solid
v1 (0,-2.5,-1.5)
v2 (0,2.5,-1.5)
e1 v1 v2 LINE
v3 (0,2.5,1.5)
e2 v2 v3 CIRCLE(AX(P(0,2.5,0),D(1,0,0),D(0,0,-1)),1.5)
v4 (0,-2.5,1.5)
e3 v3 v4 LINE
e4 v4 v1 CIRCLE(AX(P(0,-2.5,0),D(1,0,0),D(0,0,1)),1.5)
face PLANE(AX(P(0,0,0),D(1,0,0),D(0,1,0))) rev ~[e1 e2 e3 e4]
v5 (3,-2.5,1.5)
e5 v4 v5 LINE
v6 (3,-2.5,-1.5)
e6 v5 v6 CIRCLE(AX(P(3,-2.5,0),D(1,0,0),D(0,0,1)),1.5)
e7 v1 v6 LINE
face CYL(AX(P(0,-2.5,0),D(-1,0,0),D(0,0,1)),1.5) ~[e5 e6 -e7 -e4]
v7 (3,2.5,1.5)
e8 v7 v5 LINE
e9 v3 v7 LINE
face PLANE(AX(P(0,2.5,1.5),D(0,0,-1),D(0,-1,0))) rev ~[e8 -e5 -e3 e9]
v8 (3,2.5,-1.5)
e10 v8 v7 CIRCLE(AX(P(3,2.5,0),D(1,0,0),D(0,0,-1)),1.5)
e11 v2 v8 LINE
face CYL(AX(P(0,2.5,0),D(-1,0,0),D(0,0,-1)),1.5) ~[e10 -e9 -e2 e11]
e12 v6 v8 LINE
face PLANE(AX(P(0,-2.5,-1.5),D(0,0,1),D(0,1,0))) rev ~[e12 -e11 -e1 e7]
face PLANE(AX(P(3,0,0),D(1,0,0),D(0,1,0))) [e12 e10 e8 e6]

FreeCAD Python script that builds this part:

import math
import FreeCAD as App
import Part
import Sketcher
from FreeCAD import Vector
Q = App.Units.Quantity

doc = App.newDocument("Part")
params = doc.addObject("Spreadsheet::Sheet", "Params")
for row, (alias, value) in enumerate([
    ("sketch1_radius", "1.5 mm"),
    ("sketch1_width", "5 mm"),
    ("pad1_length", "3 mm"),
], start=1):
    params.set(f"A{row}", alias)
    params.set(f"B{row}", "=" + value)
    params.setAlias(f"B{row}", alias)

body = doc.addObject("PartDesign::Body", "Body")

sketch1 = body.newObject("Sketcher::SketchObject", "Sketch")
sketch1.AttachmentSupport = (doc.getObject("YZ_Plane"), [""])
sketch1.MapMode = "FlatFace"
sketch1.addGeometry(Part.ArcOfCircle(Part.Circle(Vector(2.5, 0, 0), Vector(0, 0, 1), 1.5), math.radians(-90), math.radians(90)), False)
sketch1.addGeometry(Part.LineSegment(Vector(2.5, 1.5, 0), Vector(-2.5, 1.5, 0)), False)
sketch1.addGeometry(Part.ArcOfCircle(Part.Circle(Vector(-2.5, 0, 0), Vector(0, 0, 1), 1.5), math.radians(90), math.radians(270)), False)
sketch1.addGeometry(Part.LineSegment(Vector(-2.5, -1.5, 0), Vector(2.5, -1.5, 0)), False)
sketch1.addConstraint(Sketcher.Constraint("Tangent", 0, 2, 1, 1))
sketch1.addConstraint(Sketcher.Constraint("Tangent", 1, 2, 2, 1))
sketch1.addConstraint(Sketcher.Constraint("Tangent", 2, 2, 3, 1))
sketch1.addConstraint(Sketcher.Constraint("Tangent", 3, 2, 0, 1))
sketch1.addConstraint(Sketcher.Constraint("Horizontal", 1))
sketch1.addConstraint(Sketcher.Constraint("Horizontal", 3))
sketch1.addConstraint(Sketcher.Constraint("Symmetric", 0, 3, 2, 3, -1, 1))
sketch1.addConstraint(Sketcher.Constraint("Radius", 0, Q("1.5 mm")))
sketch1.addConstraint(Sketcher.Constraint("DistanceX", 1, 2, 1, 1, Q("5 mm")))
sketch1.setExpression("Constraints[7]", "Params.sketch1_radius")
sketch1.setExpression("Constraints[8]", "Params.sketch1_width")
pad1 = body.newObject("PartDesign::Pad", "Pad")
pad1.Profile = sketch1
pad1.setExpression("Length", "Params.pad1_length")

doc.recompute()
